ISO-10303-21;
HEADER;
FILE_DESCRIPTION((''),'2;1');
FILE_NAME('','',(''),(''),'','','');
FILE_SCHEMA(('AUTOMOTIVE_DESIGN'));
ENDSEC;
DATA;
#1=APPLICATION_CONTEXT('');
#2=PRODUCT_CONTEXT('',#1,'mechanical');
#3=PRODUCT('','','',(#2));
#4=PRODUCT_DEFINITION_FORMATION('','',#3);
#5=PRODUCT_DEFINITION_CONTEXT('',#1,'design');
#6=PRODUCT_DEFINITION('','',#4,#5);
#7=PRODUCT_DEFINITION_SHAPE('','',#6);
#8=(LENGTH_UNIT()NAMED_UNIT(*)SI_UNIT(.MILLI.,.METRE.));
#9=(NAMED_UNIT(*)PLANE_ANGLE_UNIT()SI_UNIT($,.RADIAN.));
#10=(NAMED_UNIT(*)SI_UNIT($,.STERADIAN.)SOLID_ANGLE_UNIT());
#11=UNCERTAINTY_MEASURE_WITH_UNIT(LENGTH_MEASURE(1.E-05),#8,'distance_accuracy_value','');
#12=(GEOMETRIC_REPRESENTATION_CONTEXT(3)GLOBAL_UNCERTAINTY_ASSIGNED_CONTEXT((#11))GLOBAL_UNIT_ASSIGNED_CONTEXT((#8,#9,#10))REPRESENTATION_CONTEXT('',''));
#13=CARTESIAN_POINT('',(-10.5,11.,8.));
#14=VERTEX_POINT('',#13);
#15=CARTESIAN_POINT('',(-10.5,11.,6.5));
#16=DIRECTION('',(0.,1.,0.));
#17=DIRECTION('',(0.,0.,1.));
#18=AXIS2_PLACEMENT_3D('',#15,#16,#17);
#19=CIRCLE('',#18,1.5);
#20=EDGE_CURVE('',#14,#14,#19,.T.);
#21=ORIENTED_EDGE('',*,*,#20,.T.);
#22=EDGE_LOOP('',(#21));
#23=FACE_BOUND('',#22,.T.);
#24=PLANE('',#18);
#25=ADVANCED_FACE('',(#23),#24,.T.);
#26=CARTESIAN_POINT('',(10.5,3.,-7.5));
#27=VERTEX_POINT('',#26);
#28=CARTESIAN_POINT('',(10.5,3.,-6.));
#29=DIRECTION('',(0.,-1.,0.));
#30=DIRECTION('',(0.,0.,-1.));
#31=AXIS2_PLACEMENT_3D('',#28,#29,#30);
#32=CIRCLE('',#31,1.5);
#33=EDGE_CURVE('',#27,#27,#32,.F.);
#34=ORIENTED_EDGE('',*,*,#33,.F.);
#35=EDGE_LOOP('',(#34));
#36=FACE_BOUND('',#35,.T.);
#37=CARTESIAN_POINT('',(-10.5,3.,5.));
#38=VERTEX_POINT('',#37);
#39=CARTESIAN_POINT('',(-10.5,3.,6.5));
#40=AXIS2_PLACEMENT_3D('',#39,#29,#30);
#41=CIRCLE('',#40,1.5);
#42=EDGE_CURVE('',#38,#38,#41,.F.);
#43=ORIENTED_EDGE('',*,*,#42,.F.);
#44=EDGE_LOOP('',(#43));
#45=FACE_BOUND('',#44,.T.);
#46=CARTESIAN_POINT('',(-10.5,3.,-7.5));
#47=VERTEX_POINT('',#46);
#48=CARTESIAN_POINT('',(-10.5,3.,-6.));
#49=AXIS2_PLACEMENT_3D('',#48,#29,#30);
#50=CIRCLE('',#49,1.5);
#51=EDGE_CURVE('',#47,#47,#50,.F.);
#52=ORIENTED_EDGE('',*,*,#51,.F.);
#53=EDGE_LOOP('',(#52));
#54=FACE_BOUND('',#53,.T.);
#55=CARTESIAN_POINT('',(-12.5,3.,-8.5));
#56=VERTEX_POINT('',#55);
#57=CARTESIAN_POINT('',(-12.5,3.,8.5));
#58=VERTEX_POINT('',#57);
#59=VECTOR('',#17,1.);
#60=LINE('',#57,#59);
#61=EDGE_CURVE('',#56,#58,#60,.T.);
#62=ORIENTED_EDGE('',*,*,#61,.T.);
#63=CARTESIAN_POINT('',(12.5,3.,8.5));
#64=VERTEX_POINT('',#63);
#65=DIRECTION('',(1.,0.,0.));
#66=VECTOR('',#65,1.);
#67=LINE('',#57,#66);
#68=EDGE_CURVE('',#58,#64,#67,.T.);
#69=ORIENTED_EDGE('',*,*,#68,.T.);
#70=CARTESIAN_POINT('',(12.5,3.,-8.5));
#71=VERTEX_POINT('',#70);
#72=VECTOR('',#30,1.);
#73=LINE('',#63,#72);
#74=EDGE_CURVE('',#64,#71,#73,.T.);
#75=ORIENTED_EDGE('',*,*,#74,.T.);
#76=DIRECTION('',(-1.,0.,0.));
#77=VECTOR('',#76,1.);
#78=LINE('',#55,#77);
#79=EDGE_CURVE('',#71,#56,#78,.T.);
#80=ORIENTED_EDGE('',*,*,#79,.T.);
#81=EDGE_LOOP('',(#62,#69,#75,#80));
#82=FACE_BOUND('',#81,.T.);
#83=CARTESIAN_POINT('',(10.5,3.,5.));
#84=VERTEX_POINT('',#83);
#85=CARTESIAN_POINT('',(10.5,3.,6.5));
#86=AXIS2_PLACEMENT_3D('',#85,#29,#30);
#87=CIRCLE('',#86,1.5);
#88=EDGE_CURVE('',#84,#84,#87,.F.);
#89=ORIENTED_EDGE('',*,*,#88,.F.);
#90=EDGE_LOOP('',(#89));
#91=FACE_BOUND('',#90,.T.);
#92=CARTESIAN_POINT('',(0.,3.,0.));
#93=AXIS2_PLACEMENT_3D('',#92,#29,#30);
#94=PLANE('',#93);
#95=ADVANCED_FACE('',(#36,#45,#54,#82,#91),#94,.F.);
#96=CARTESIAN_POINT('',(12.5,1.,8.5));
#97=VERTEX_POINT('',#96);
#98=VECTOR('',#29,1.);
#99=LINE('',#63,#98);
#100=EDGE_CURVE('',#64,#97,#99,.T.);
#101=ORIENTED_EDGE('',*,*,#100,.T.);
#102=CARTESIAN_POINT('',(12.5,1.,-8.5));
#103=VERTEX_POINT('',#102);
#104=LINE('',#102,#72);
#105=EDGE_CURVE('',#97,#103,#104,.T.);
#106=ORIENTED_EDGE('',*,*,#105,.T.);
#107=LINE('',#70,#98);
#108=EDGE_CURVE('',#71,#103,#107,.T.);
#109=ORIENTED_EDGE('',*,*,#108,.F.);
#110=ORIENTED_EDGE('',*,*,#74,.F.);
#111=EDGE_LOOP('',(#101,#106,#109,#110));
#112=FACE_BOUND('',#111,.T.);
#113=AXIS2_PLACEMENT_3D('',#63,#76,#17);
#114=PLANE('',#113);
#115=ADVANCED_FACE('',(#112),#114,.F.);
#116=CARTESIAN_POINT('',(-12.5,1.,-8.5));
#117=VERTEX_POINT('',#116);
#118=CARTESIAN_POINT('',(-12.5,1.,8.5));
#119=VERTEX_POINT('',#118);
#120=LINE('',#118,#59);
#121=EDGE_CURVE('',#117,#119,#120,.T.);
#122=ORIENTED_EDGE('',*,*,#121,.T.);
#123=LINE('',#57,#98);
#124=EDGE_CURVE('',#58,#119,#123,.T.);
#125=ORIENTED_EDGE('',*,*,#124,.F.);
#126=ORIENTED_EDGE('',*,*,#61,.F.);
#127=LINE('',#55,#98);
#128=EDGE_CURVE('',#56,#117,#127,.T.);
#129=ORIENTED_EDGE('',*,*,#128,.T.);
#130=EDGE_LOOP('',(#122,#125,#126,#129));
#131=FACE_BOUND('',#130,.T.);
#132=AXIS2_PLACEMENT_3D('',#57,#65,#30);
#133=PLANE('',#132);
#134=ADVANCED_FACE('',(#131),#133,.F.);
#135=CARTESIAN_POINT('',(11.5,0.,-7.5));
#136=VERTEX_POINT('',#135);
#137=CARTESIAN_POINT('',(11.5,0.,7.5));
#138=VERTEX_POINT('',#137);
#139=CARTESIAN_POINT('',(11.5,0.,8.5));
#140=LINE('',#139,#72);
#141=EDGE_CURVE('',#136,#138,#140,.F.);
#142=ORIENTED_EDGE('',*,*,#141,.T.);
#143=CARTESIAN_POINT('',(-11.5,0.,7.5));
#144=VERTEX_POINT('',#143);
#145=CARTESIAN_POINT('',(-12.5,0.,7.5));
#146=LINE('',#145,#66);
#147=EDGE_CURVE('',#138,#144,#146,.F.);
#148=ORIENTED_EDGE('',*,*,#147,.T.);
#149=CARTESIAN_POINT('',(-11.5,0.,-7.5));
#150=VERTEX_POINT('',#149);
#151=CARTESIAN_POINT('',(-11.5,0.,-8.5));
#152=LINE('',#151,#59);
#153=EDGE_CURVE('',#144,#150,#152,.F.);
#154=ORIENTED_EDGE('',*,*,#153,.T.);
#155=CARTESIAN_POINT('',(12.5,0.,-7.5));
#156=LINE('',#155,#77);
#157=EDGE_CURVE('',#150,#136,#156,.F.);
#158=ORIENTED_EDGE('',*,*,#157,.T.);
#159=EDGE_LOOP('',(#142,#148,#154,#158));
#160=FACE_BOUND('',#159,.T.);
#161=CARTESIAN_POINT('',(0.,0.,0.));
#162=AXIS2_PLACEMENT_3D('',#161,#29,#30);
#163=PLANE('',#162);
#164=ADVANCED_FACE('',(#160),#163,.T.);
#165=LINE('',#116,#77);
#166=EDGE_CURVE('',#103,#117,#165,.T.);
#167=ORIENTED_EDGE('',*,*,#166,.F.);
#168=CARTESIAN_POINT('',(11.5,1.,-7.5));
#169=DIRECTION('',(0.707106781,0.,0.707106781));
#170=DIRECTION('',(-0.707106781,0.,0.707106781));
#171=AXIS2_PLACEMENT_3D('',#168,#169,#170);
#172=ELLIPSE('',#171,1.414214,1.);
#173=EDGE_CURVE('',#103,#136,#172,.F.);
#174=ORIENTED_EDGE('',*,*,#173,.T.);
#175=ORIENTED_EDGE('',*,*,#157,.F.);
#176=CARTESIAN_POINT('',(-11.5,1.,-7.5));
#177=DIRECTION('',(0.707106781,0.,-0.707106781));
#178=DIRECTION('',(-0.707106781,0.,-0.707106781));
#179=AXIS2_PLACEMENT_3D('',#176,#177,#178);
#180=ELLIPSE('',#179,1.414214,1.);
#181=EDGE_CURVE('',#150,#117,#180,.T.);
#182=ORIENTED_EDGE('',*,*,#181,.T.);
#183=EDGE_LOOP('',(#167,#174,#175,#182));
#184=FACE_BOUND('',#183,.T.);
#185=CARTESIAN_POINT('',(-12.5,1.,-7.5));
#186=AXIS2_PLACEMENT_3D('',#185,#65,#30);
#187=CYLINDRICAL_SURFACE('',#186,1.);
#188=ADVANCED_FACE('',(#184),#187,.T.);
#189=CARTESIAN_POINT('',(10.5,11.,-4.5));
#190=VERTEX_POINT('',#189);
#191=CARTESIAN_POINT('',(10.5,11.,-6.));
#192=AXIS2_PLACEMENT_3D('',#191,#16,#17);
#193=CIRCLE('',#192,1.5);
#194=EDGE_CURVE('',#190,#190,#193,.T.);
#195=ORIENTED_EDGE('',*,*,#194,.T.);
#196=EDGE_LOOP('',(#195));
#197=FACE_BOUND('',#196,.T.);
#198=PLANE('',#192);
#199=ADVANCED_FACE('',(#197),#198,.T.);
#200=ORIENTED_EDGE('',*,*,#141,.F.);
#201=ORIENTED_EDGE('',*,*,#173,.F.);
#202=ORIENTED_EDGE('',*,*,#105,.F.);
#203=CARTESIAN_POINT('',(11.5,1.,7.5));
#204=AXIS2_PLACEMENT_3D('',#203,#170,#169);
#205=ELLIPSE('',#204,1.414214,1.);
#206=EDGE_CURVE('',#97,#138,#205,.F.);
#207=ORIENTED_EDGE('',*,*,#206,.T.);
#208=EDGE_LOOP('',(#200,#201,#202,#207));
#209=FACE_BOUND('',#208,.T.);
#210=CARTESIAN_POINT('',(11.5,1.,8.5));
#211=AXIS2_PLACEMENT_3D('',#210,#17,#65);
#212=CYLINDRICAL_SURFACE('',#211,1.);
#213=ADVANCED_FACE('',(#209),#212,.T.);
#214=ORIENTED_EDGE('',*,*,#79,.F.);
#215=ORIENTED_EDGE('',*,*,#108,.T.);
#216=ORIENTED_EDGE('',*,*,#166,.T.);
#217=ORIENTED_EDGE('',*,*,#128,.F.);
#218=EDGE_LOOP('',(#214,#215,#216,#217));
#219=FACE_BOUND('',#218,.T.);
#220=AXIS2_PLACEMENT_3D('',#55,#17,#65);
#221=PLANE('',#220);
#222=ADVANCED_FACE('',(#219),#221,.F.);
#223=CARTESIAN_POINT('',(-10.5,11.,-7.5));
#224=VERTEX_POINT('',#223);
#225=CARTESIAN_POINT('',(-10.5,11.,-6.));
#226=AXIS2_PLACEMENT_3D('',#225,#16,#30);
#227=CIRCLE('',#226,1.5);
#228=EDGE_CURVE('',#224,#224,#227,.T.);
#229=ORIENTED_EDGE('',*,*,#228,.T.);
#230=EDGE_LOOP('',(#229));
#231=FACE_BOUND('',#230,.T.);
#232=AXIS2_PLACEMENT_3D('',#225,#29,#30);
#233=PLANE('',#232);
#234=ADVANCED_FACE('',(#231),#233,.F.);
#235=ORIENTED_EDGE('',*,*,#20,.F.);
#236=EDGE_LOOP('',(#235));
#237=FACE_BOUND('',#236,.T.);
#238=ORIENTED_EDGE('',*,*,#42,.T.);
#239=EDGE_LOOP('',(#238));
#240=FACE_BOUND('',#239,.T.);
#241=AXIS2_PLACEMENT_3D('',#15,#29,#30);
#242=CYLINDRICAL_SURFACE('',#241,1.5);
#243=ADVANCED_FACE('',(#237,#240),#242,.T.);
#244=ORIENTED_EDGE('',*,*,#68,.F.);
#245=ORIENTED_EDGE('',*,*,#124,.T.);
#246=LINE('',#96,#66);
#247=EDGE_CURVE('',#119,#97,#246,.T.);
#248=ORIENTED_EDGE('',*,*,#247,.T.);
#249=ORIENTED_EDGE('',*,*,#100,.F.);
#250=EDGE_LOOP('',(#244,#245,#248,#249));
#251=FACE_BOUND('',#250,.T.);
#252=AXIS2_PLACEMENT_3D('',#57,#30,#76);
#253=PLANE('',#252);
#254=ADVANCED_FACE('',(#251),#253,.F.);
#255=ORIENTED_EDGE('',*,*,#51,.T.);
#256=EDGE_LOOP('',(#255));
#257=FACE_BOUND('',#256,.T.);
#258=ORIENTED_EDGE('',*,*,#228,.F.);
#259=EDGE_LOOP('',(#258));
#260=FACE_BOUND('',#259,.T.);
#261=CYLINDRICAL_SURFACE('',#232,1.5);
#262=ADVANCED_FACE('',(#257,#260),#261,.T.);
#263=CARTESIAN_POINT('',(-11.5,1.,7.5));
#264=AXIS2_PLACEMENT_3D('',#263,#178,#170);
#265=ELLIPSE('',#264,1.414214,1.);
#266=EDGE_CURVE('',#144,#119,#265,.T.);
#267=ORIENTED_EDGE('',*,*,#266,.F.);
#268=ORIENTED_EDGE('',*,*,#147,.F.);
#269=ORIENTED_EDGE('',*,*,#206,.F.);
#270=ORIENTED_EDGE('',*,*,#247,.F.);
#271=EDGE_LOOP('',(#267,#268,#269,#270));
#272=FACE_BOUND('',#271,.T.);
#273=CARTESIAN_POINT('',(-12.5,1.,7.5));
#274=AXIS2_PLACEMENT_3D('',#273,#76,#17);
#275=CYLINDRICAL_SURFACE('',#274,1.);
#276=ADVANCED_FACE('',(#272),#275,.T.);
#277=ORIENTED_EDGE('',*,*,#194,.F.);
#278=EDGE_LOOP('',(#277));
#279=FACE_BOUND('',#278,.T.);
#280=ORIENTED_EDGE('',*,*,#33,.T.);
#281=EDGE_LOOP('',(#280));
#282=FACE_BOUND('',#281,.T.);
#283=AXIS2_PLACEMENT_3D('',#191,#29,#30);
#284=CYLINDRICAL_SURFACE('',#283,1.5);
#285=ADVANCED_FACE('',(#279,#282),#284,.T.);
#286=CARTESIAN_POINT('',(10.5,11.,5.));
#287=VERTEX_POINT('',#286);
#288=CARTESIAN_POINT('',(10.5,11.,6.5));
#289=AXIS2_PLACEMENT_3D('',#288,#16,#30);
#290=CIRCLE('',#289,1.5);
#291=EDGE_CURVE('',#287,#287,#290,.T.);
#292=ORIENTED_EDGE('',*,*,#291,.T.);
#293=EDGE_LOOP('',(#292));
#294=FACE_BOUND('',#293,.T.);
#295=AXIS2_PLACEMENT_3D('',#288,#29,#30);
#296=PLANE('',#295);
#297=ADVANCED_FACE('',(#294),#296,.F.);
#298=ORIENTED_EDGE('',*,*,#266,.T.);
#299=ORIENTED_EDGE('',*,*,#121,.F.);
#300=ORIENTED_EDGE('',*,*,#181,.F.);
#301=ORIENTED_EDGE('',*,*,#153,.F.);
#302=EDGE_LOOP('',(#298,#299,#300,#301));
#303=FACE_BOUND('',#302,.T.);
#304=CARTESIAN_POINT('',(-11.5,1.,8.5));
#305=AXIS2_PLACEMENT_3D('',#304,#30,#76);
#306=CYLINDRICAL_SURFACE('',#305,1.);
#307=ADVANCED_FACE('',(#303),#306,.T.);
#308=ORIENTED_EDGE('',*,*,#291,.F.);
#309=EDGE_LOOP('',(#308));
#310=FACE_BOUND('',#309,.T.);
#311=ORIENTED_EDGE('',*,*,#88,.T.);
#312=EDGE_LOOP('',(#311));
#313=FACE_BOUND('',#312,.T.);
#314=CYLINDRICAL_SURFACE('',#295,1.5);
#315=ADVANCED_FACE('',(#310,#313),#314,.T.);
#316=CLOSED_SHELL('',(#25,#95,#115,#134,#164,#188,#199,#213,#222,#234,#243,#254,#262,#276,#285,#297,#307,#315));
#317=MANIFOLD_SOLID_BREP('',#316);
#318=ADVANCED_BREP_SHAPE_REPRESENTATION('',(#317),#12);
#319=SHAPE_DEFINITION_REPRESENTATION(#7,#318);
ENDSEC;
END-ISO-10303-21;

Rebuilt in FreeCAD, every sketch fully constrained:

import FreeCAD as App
import Part
import Sketcher
Q = App.Units.Quantity


def edges_at(feature, points):
    """Names of the edges that pass closest to the given points."""
    edges = feature.Shape.Edges
    near = lambda p: min(range(len(edges)), key=lambda i: edges[i].distToShape(Part.Vertex(*p))[0])
    return sorted({f"Edge{near(p) + 1}" for p in points})

doc = App.newDocument("Part")
body = doc.addObject("PartDesign::Body", "Body")

# Sketch on XZ plane
sketch1 = body.newObject("Sketcher::SketchObject", "Sketch")
sketch1.AttachmentSupport = (doc.getObject("XZ_Plane"), [""])
sketch1.MapMode = "FlatFace"
sketch1.addGeometry(Part.LineSegment(App.Vector(-12, -8, 0), App.Vector(-12, 8, 0)), False)
sketch1.addGeometry(Part.LineSegment(App.Vector(-12, 8, 0), App.Vector(12, 8, 0)), False)
sketch1.addGeometry(Part.LineSegment(App.Vector(12, 8, 0), App.Vector(12, -8, 0)), False)
sketch1.addGeometry(Part.LineSegment(App.Vector(12, -8, 0), App.Vector(-12, -8, 0)), False)
sketch1.addConstraint(Sketcher.Constraint("Coincident", 0, 2, 1, 1))
sketch1.addConstraint(Sketcher.Constraint("Coincident", 1, 2, 2, 1))
sketch1.addConstraint(Sketcher.Constraint("Coincident", 2, 2, 3, 1))
sketch1.addConstraint(Sketcher.Constraint("Coincident", 3, 2, 0, 1))
sketch1.addConstraint(Sketcher.Constraint("Vertical", 0))
sketch1.addConstraint(Sketcher.Constraint("Horizontal", 1))
sketch1.addConstraint(Sketcher.Constraint("Vertical", 2))
sketch1.addConstraint(Sketcher.Constraint("Horizontal", 3))
sketch1.addConstraint(Sketcher.Constraint("Symmetric", 0, 2, 2, 2, -1, 1))
sketch1.addConstraint(Sketcher.Constraint("DistanceX", 1, 1, 1, 2, Q("25 mm")))
sketch1.addConstraint(Sketcher.Constraint("DistanceY", 0, 1, 0, 2, Q("17 mm")))
pad1 = body.newObject("PartDesign::Pad", "Pad")
pad1.Profile = sketch1
pad1.Length = 3
pad1.Reversed = True

# Sketch on XZ plane
sketch2 = body.newObject("Sketcher::SketchObject", "Sketch001")
sketch2.AttachmentSupport = (doc.getObject("XZ_Plane"), [""])
sketch2.MapMode = "FlatFace"
sketch2.AttachmentOffset = App.Placement(App.Vector(0, 0, -3), App.Rotation())
sketch2.addGeometry(Part.Circle(App.Vector(-10.5, 6.5, 0), App.Vector(0, 0, 1), 1.5), False)
sketch2.addGeometry(Part.Circle(App.Vector(10.5, 6.5, 0), App.Vector(0, 0, 1), 1.5), False)
sketch2.addGeometry(Part.Circle(App.Vector(10.5, -6, 0), App.Vector(0, 0, 1), 1.5), False)
sketch2.addGeometry(Part.Circle(App.Vector(-10.5, -6, 0), App.Vector(0, 0, 1), 1.5), False)
sketch2.addConstraint(Sketcher.Constraint("Equal", 0, 1))
sketch2.addConstraint(Sketcher.Constraint("Equal", 1, 2))
sketch2.addConstraint(Sketcher.Constraint("Equal", 2, 3))
sketch2.addConstraint(Sketcher.Constraint("Symmetric", 0, 3, 1, 3, -2))
sketch2.addConstraint(Sketcher.Constraint("Symmetric", 2, 3, 3, 3, -2))
sketch2.addConstraint(Sketcher.Constraint("Vertical", 1, 3, 2, 3))
sketch2.addConstraint(Sketcher.Constraint("Diameter", 0, Q("3 mm")))
sketch2.addConstraint(Sketcher.Constraint("DistanceY", 2, 3, -1, 1, Q("6 mm")))
sketch2.addConstraint(Sketcher.Constraint("DistanceX", 0, 3, 1, 3, Q("21 mm")))
sketch2.addConstraint(Sketcher.Constraint("DistanceY", -1, 1, 0, 3, Q("6.5 mm")))
pad2 = body.newObject("PartDesign::Pad", "Pad001")
pad2.Profile = sketch2
pad2.Length = 8
pad2.Reversed = True
doc.recompute()

fillet = body.newObject("PartDesign::Fillet", "Fillet")
fillet.Base = (pad2, edges_at(pad2, [
    (0, 0, 8.5),
    (-12.5, 0, 0),
    (0, 0, -8.5),
    (12.5, 0, 0),
]))
fillet.Radius = 1

doc.recompute()
